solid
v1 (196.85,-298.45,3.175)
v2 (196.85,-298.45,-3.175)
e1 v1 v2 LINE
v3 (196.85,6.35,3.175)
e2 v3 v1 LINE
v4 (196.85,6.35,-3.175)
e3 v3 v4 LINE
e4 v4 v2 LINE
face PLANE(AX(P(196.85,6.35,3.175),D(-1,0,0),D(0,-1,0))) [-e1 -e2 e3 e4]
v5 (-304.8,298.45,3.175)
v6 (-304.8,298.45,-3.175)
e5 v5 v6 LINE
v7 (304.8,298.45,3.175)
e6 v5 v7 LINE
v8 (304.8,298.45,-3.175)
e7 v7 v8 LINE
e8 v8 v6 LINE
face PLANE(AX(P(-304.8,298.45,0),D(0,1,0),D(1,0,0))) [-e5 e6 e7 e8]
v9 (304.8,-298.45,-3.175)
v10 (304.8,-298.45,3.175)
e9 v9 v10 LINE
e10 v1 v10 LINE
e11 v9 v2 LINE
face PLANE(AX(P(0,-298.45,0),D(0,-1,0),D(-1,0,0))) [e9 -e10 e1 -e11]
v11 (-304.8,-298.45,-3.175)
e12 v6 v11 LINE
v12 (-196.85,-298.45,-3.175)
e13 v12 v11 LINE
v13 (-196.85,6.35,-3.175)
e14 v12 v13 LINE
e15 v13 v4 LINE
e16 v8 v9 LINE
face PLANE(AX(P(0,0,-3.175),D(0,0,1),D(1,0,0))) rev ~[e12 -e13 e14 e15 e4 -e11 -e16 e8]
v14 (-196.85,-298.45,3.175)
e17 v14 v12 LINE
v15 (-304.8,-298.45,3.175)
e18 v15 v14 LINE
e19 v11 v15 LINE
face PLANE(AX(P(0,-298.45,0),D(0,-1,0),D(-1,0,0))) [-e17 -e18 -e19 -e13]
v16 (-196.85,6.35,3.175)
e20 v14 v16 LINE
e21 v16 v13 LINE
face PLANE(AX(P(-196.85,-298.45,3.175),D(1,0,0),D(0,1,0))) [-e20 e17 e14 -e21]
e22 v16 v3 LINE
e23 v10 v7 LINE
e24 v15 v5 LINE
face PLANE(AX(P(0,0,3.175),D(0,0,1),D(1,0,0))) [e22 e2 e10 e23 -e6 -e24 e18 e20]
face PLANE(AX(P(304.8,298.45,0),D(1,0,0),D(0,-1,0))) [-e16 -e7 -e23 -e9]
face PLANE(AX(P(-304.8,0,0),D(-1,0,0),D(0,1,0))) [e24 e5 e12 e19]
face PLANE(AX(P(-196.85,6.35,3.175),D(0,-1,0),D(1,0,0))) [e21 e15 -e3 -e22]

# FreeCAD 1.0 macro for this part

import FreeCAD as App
import Part
import Sketcher
from FreeCAD import Vector
Q = App.Units.Quantity


def add_polygon(sketch, points):
    """Adds a closed chain of lines whose ends are joined by coincident constraints."""
    first, n = sketch.GeometryCount, len(points)
    for a, b in zip(points, points[1:] + points[:1]):
        sketch.addGeometry(Part.LineSegment(App.Vector(*a, 0), App.Vector(*b, 0)), False)
    for i in range(n):
        sketch.addConstraint(Sketcher.Constraint("Coincident", first + i, 2, first + (i + 1) % n, 1))

doc = App.newDocument("Part")
body = doc.addObject("PartDesign::Body", "Body")

# Sketch on XY plane
sketch1 = body.newObject("Sketcher::SketchObject", "Sketch")
sketch1.AttachmentSupport = (doc.getObject("XY_Plane"), [""])
sketch1.MapMode = "FlatFace"
add_polygon(sketch1, [(-305, 298), (-305, -298), (305, -298), (305, 298)])  # lines 0-3
sketch1.addConstraint(Sketcher.Constraint("Vertical", 0))
sketch1.addConstraint(Sketcher.Constraint("Horizontal", 1))
sketch1.addConstraint(Sketcher.Constraint("Vertical", 2))
sketch1.addConstraint(Sketcher.Constraint("Horizontal", 3))
sketch1.addConstraint(Sketcher.Constraint("Symmetric", 0, 2, 2, 2, -1, 1))
sketch1.addConstraint(Sketcher.Constraint("DistanceX", 1, 1, 1, 2, Q("24 in")))
sketch1.addConstraint(Sketcher.Constraint("DistanceY", 0, 2, 0, 1, Q("23.5 in")))
pad1 = body.newObject("PartDesign::Pad", "Pad")
pad1.Profile = sketch1
pad1.Length = Q("0.25 in")
pad1.Midplane = True

# Sketch on XY plane
sketch2 = body.newObject("Sketcher::SketchObject", "Sketch001")
sketch2.AttachmentSupport = (doc.getObject("XY_Plane"), [""])
sketch2.MapMode = "FlatFace"
sketch2.AttachmentOffset = App.Placement(Vector(0, 0, 0.125 * 25.4), App.Rotation())
add_polygon(sketch2, [(-197, -298), (197, -298), (197, 6), (-197, 6)])  # lines 0-3
sketch2.addConstraint(Sketcher.Constraint("Horizontal", 0))
sketch2.addConstraint(Sketcher.Constraint("Vertical", 1))
sketch2.addConstraint(Sketcher.Constraint("Horizontal", 2))
sketch2.addConstraint(Sketcher.Constraint("Vertical", 3))
sketch2.addConstraint(Sketcher.Constraint("DistanceY", 1, 1, 1, 2, Q("12 in")))
sketch2.addConstraint(Sketcher.Constraint("DistanceX", 0, 1, 0, 2, Q("15.5 in")))
sketch2.addConstraint(Sketcher.Constraint("DistanceX", -1, 1, 0, 2, Q("7.75 in")))
sketch2.addConstraint(Sketcher.Constraint("DistanceY", 0, 2, -1, 1, Q("11.75 in")))
pocket1 = body.newObject("PartDesign::Pocket", "Pocket")
pocket1.Profile = sketch2
pocket1.Type = "ThroughAll"

doc.recompute()
